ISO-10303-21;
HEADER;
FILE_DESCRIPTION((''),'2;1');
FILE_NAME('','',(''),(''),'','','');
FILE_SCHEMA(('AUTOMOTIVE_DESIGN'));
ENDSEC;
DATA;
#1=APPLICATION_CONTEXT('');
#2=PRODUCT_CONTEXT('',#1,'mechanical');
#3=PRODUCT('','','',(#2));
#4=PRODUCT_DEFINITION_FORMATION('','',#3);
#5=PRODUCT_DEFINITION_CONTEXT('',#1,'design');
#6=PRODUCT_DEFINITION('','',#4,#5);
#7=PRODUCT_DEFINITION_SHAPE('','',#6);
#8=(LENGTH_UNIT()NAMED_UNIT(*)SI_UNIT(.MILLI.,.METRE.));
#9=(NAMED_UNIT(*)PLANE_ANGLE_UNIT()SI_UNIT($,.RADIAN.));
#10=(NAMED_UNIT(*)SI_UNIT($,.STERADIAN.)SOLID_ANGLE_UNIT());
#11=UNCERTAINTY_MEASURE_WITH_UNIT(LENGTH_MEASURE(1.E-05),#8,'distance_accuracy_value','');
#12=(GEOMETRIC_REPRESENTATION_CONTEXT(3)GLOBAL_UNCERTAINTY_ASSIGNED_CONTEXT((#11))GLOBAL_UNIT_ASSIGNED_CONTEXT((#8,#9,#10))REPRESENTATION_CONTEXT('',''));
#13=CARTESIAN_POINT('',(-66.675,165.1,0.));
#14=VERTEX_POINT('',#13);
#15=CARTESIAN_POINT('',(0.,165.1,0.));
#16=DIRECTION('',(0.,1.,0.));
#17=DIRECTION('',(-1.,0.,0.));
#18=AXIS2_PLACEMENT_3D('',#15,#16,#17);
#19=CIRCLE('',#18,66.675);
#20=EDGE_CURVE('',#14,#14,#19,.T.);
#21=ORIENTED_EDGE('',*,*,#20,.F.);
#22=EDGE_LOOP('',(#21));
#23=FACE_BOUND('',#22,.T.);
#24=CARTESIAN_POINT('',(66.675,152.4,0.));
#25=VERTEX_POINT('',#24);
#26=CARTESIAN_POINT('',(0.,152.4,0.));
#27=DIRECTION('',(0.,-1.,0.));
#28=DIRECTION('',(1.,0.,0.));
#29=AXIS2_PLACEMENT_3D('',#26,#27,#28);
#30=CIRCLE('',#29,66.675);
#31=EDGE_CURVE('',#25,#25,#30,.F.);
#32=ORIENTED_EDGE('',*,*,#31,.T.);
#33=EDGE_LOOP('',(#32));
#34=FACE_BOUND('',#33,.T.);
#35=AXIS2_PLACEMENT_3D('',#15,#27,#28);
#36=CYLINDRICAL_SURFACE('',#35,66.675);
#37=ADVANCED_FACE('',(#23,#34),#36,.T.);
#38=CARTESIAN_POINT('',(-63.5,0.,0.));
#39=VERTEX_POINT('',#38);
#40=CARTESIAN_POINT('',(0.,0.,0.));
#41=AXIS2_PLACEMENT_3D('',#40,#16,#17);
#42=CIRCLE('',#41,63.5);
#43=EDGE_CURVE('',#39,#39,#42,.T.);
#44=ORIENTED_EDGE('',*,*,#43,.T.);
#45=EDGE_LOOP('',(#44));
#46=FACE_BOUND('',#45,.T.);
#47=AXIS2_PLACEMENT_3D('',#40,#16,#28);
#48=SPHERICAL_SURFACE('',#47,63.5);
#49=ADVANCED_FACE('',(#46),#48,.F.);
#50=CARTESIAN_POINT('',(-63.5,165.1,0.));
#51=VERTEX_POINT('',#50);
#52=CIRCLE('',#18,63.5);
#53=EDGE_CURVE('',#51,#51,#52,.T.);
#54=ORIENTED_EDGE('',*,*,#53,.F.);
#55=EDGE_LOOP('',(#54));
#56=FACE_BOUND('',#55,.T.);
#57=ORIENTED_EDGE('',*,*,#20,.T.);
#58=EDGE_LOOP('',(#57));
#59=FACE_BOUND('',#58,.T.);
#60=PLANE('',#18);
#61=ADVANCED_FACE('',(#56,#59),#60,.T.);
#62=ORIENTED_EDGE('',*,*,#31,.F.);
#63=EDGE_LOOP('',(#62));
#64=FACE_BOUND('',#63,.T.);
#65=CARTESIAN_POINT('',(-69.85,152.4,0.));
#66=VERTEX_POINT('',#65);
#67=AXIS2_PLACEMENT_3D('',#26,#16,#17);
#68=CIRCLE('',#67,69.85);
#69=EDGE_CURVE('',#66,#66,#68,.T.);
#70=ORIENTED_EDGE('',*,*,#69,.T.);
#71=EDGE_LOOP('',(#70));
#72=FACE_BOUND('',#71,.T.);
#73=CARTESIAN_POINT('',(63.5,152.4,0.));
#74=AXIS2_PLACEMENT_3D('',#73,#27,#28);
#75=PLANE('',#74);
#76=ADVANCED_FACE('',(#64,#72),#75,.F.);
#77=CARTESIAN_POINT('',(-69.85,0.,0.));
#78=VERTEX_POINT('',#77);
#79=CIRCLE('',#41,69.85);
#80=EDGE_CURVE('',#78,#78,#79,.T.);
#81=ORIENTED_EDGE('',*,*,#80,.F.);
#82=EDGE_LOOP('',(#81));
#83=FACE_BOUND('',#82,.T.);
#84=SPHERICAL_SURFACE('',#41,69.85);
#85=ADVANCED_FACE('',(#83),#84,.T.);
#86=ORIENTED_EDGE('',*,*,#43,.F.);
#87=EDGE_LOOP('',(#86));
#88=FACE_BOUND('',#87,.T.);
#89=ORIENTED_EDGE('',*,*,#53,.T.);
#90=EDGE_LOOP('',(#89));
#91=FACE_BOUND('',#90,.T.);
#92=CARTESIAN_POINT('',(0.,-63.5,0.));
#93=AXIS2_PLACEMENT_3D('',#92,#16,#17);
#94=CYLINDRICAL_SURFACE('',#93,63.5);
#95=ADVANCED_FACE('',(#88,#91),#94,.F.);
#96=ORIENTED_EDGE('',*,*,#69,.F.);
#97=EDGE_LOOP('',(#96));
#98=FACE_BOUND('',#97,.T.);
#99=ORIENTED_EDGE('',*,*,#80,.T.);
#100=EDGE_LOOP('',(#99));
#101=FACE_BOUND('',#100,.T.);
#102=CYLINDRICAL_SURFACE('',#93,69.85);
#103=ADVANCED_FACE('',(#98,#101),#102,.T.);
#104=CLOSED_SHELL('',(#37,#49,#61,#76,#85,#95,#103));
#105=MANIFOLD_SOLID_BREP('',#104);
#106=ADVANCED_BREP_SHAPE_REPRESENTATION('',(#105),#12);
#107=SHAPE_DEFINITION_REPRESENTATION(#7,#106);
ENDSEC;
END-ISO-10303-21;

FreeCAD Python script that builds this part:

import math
import FreeCAD as App
import Part
import Sketcher
from FreeCAD import Vector
Q = App.Units.Quantity

doc = App.newDocument("Part")
body = doc.addObject("PartDesign::Body", "Body")

sketch1 = body.newObject("Sketcher::SketchObject", "Sketch")
sketch1.AttachmentSupport = (doc.getObject("XY_Plane"), [""])
sketch1.MapMode = "FlatFace"
sketch1.addGeometry([
    Part.LineSegment(Vector(63.5, 152.4, 0), Vector(63.5, 0, 0)),
    Part.ArcOfCircle(Part.Circle(Vector(0, 0, 0), Vector(0, 0, 1), 63.5), math.radians(-90), math.radians(0)),
    Part.LineSegment(Vector(0, -63.5, 0), Vector(0, -69.8, 0)),
    Part.ArcOfCircle(Part.Circle(Vector(0, 0, 0), Vector(0, 0, 1), 69.8), math.radians(-90), math.radians(0)),
    Part.LineSegment(Vector(69.8, 0, 0), Vector(69.8, 165.1, 0)),
    Part.LineSegment(Vector(69.8, 165.1, 0), Vector(66.7, 165.1, 0)),
    Part.LineSegment(Vector(66.7, 165.1, 0), Vector(66.7, 152.4, 0)),
    Part.LineSegment(Vector(66.7, 152.4, 0), Vector(63.5, 152.4, 0)),
], False)
sketch1.addConstraint([
    Sketcher.Constraint("Tangent", 0, 2, 1, 2),
    Sketcher.Constraint("Coincident", 1, 1, 2, 1),
    Sketcher.Constraint("Coincident", 2, 2, 3, 1),
    Sketcher.Constraint("Tangent", 3, 2, 4, 1),
    Sketcher.Constraint("Coincident", 4, 2, 5, 1),
    Sketcher.Constraint("Coincident", 5, 2, 6, 1),
    Sketcher.Constraint("Coincident", 6, 2, 7, 1),
    Sketcher.Constraint("Coincident", 7, 2, 0, 1),
    Sketcher.Constraint("Vertical", 0),
    Sketcher.Constraint("Vertical", 2),
    Sketcher.Constraint("Vertical", 4),
    Sketcher.Constraint("Horizontal", 5),
    Sketcher.Constraint("Vertical", 6),
    Sketcher.Constraint("Horizontal", 7),
    Sketcher.Constraint("Coincident", 1, 3, -1, 1),
    Sketcher.Constraint("Coincident", 3, 3, -1, 1),
    Sketcher.Constraint("PointOnObject", 1, 1, -2),
    Sketcher.Constraint("Equal", 5, 7),
    Sketcher.Constraint("Radius", 1, Q("2.5 in")),
    Sketcher.Constraint("DistanceY", 0, 2, 0, 1, Q("6 in")),
    Sketcher.Constraint("Radius", 3, Q("2.75 in")),
    Sketcher.Constraint("DistanceY", 4, 1, 4, 2, Q("6.5 in")),
])
revolution = body.newObject("PartDesign::Revolution", "Revolution")
revolution.Profile = sketch1
revolution.ReferenceAxis = (sketch1, ["V_Axis"])
revolution.Angle = 360

sketch2 = body.newObject("Sketcher::SketchObject", "Sketch001")
sketch2.AttachmentSupport = (doc.getObject("XZ_Plane"), [""])
sketch2.MapMode = "FlatFace"
sketch2.AttachmentOffset = App.Placement(Vector(0, 0, -6.5 * 25.4), App.Rotation())
sketch2.addGeometry(Part.Circle(Vector(0, 0, 0), Vector(0, 0, 1), 70), False)
sketch2.addConstraint([
    Sketcher.Constraint("Coincident", 0, 3, -1, 1),
    Sketcher.Constraint("Diameter", 0, Q("5.5 in")),
])
pocket1 = body.newObject("PartDesign::Pocket", "Pocket")
pocket1.Profile = sketch2
pocket1.Length = Q("0.5 in")
pocket1.Reversed = True

sketch3 = body.newObject("Sketcher::SketchObject", "Sketch002")
sketch3.AttachmentSupport = (doc.getObject("XZ_Plane"), [""])
sketch3.MapMode = "FlatFace"
sketch3.AttachmentOffset = App.Placement(Vector(0, 0, -6 * 25.4), App.Rotation())
sketch3.addGeometry([
    Part.Circle(Vector(0, 0, 0), Vector(0, 0, 1), 67),
    Part.Circle(Vector(0, 0, 0), Vector(0, 0, 1), 64),
], False)
sketch3.addConstraint([
    Sketcher.Constraint("Coincident", 0, 3, -1, 1),
    Sketcher.Constraint("Coincident", 1, 3, -1, 1),
    Sketcher.Constraint("Diameter", 1, Q("5 in")),
    Sketcher.Constraint("Diameter", 0, Q("5.25 in")),
])
pad1 = body.newObject("PartDesign::Pad", "Pad")
pad1.Profile = sketch3
pad1.Length = Q("0.5 in")
pad1.Reversed = True

sketch4 = body.newObject("Sketcher::SketchObject", "Sketch003")
sketch4.AttachmentSupport = (doc.getObject("XZ_Plane"), [""])
sketch4.MapMode = "FlatFace"
sketch4.AttachmentOffset = App.Placement(Vector(0, 0, -6.5 * 25.4), App.Rotation())
sketch4.addGeometry([
    Part.Circle(Vector(0, 0, 0), Vector(0, 0, 1), 68),
    Part.Circle(Vector(0, 0, 0), Vector(0, 0, 1), 67),
], False)
sketch4.addConstraint([
    Sketcher.Constraint("Coincident", 0, 3, -1, 1),
    Sketcher.Constraint("Coincident", 1, 3, -1, 1),
    Sketcher.Constraint("Diameter", 1, Q("5.25 in")),
    Sketcher.Constraint("Diameter", 0, Q("5.375 in")),
])
pad2 = body.newObject("PartDesign::Pad", "Pad001")
pad2.Profile = sketch4
pad2.Length = Q("0.375 in")

sketch5 = body.newObject("Sketcher::SketchObject", "Sketch004")
sketch5.AttachmentSupport = (doc.getObject("XZ_Plane"), [""])
sketch5.MapMode = "FlatFace"
sketch5.AttachmentOffset = App.Placement(Vector(0, 0, -6.5 * 25.4), App.Rotation())
sketch5.addGeometry([
    Part.Circle(Vector(0, 0, 0), Vector(0, 0, 1), 68),
    Part.Circle(Vector(0, 0, 0), Vector(0, 0, 1), 67),
], False)
sketch5.addConstraint([
    Sketcher.Constraint("Coincident", 0, 3, -1, 1),
    Sketcher.Constraint("Coincident", 1, 3, -1, 1),
    Sketcher.Constraint("Diameter", 1, Q("5.25 in")),
    Sketcher.Constraint("Diameter", 0, Q("5.375 in")),
])
pocket2 = body.newObject("PartDesign::Pocket", "Pocket001")
pocket2.Profile = sketch5
pocket2.Length = Q("0.0625 in")
pocket2.Reversed = True

sketch6 = body.newObject("Sketcher::SketchObject", "Sketch005")
sketch6.AttachmentSupport = (doc.getObject("XZ_Plane"), [""])
sketch6.MapMode = "FlatFace"
sketch6.AttachmentOffset = App.Placement(Vector(0, 0, -6.4375 * 25.4), App.Rotation())
sketch6.addGeometry([
    Part.Circle(Vector(0, 0, 0), Vector(0, 0, 1), 68),
    Part.Circle(Vector(0, 0, 0), Vector(0, 0, 1), 67),
], False)
sketch6.addConstraint([
    Sketcher.Constraint("Coincident", 0, 3, -1, 1),
    Sketcher.Constraint("Coincident", 1, 3, -1, 1),
    Sketcher.Constraint("Diameter", 1, Q("5.25 in")),
    Sketcher.Constraint("Diameter", 0, Q("5.375 in")),
])
pocket3 = body.newObject("PartDesign::Pocket", "Pocket002")
pocket3.Profile = sketch6
pocket3.Length = Q("0.3125 in")
pocket3.Reversed = True

doc.recompute()
